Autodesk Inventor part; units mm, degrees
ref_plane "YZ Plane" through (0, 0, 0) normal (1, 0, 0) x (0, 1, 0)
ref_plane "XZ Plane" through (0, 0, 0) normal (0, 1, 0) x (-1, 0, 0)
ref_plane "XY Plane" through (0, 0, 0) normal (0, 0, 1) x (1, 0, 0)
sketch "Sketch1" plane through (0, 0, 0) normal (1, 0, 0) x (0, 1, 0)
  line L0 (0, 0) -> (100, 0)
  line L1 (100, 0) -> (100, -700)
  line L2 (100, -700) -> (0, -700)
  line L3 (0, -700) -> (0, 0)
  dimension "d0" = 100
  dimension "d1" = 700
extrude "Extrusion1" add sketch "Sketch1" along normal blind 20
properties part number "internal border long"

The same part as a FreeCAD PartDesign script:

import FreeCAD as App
import Part
import Sketcher

V = App.Vector


def add_polygon(sketch, points):
    """Adds a closed chain of lines whose ends are joined by coincident constraints."""
    first, n = sketch.GeometryCount, len(points)
    for a, b in zip(points, points[1:] + points[:1]):
        sketch.addGeometry(Part.LineSegment(App.Vector(*a, 0), App.Vector(*b, 0)), False)
    for i in range(n):
        sketch.addConstraint(Sketcher.Constraint("Coincident", first + i, 2, first + (i + 1) % n, 1))

doc = App.newDocument("Part")
body = doc.addObject("PartDesign::Body", "Body")

# Sketch on YZ plane
sketch1 = body.newObject("Sketcher::SketchObject", "Sketch")
sketch1.AttachmentSupport = (doc.getObject("YZ_Plane"), [""])
sketch1.MapMode = "FlatFace"
add_polygon(sketch1, [(100, 0), (0, 0), (0, -700), (100, -700)])  # lines 0-3
sketch1.addConstraint(Sketcher.Constraint("Horizontal", 0))
sketch1.addConstraint(Sketcher.Constraint("Vertical", 1))
sketch1.addConstraint(Sketcher.Constraint("Horizontal", 2))
sketch1.addConstraint(Sketcher.Constraint("Vertical", 3))
sketch1.addConstraint(Sketcher.Constraint("Coincident", 0, 2, -1, 1))
sketch1.addConstraint(Sketcher.Constraint("DistanceX", 0, 2, 0, 1, 100.0))
sketch1.addConstraint(Sketcher.Constraint("DistanceY", 1, 2, 1, 1, 700.0))
pad1 = body.newObject("PartDesign::Pad", "Pad")
pad1.Profile = sketch1
pad1.Length = 20

doc.recompute()
